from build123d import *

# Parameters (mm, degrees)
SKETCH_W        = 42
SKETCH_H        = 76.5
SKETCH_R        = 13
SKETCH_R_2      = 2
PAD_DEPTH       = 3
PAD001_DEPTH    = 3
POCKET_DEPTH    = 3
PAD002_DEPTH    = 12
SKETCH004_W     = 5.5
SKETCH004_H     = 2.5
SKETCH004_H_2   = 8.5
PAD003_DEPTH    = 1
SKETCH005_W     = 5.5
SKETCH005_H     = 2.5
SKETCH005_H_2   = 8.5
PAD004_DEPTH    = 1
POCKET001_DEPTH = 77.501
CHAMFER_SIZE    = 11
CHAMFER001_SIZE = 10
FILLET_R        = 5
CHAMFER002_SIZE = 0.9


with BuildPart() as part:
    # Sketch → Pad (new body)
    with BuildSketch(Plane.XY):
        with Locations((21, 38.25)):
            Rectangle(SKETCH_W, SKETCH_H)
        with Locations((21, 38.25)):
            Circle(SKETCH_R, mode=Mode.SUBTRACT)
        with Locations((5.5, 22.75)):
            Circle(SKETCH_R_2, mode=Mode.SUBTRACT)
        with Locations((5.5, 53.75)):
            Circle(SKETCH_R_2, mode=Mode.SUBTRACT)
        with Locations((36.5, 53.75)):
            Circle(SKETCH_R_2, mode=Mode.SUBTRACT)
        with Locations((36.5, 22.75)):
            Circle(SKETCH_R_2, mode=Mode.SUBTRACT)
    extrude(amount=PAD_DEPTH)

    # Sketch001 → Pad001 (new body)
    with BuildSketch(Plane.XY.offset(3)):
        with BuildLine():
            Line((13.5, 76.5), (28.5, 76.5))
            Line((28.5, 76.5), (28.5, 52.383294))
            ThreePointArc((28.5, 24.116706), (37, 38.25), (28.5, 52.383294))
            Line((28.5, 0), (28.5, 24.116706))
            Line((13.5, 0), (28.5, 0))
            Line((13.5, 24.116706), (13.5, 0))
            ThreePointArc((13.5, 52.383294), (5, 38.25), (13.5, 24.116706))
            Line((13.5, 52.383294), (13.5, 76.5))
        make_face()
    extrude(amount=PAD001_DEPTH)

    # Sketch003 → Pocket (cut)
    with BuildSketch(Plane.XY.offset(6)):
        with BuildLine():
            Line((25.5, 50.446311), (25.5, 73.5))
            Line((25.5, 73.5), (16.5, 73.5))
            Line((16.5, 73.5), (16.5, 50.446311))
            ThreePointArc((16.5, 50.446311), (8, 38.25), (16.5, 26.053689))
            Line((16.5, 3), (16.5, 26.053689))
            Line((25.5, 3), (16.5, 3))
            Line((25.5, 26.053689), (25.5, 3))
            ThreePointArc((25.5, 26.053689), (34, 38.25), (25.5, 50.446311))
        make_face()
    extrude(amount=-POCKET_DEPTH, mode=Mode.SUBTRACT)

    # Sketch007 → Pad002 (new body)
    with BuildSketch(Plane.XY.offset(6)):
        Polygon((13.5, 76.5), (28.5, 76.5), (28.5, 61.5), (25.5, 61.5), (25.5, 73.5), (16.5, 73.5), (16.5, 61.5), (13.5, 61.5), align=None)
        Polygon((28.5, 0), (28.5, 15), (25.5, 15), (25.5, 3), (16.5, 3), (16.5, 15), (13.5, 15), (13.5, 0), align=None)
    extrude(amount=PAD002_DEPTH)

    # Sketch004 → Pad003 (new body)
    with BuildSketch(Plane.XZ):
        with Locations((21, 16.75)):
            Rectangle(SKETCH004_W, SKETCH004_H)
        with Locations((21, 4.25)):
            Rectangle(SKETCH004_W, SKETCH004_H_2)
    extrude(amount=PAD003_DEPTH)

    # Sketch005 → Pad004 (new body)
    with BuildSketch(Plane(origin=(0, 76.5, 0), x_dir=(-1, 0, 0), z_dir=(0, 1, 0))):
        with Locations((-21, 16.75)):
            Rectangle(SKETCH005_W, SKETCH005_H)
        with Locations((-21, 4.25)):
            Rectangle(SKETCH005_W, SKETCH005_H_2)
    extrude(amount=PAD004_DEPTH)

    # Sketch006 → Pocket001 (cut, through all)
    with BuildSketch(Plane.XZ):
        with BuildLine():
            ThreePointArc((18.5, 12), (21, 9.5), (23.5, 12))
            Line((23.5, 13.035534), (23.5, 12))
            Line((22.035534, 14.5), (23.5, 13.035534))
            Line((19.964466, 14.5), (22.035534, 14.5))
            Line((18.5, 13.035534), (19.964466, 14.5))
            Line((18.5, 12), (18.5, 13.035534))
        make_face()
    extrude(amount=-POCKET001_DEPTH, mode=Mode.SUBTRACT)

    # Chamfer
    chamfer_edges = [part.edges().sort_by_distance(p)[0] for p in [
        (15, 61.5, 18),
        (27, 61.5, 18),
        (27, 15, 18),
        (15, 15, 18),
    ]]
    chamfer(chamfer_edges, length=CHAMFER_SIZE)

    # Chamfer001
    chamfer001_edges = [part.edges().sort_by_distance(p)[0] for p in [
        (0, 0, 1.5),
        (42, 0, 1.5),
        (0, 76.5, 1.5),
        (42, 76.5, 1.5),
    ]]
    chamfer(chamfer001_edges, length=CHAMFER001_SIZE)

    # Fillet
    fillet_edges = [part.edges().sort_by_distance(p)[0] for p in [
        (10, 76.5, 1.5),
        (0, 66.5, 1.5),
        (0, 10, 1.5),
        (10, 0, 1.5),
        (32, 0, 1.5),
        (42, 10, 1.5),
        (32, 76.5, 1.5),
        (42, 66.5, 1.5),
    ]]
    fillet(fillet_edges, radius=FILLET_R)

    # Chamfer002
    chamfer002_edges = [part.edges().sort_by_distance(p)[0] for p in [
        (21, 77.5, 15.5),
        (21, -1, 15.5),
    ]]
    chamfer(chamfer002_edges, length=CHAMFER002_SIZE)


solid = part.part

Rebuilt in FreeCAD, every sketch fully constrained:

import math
import FreeCAD as App
import Part
import Sketcher


def edges_at(feature, points):
    """Names of the edges that pass closest to the given points."""
    edges = feature.Shape.Edges
    near = lambda p: min(range(len(edges)), key=lambda i: edges[i].distToShape(Part.Vertex(*p))[0])
    return sorted({f"Edge{near(p) + 1}" for p in points})


def add_polygon(sketch, points):
    """Adds a closed chain of lines whose ends are joined by coincident constraints."""
    first, n = sketch.GeometryCount, len(points)
    for a, b in zip(points, points[1:] + points[:1]):
        sketch.addGeometry(Part.LineSegment(App.Vector(*a, 0), App.Vector(*b, 0)), False)
    for i in range(n):
        sketch.addConstraint(Sketcher.Constraint("Coincident", first + i, 2, first + (i + 1) % n, 1))

doc = App.newDocument("Part")
body = doc.addObject("PartDesign::Body", "Body")

sketch1 = doc.addObject("Sketcher::SketchObject", "Sketch")
body.addObject(sketch1)
sketch1.AttachmentSupport = (doc.XY_Plane, [""])
sketch1.MapMode = "FlatFace"
add_polygon(sketch1, [(0, 76.5), (0, 0), (42, 0), (42, 76.5)])
sketch1.addGeometry(Part.Circle(App.Vector(5.5, 22.8, 0), App.Vector(0, 0, 1), 2), False)
sketch1.addGeometry(Part.Circle(App.Vector(36.5, 22.8, 0), App.Vector(0, 0, 1), 2), False)
sketch1.addGeometry(Part.Circle(App.Vector(5.5, 53.8, 0), App.Vector(0, 0, 1), 2), False)
sketch1.addGeometry(Part.Circle(App.Vector(21, 38.2, 0), App.Vector(0, 0, 1), 13), False)
sketch1.addGeometry(Part.Circle(App.Vector(36.5, 53.8, 0), App.Vector(0, 0, 1), 2), False)
sketch1.addConstraint([
    Sketcher.Constraint("Vertical", 0),
    Sketcher.Constraint("Horizontal", 1),
    Sketcher.Constraint("Vertical", 2),
    Sketcher.Constraint("Horizontal", 3),
    Sketcher.Constraint("Coincident", 0, 2, -1, 1),
    Sketcher.Constraint("Equal", 4, 5),
    Sketcher.Constraint("Equal", 5, 6),
    Sketcher.Constraint("Equal", 6, 8),
    Sketcher.Constraint("Horizontal", 4, 3, 5, 3),
    Sketcher.Constraint("Horizontal", 6, 3, 8, 3),
    Sketcher.Constraint("Vertical", 4, 3, 6, 3),
    Sketcher.Constraint("Vertical", 5, 3, 8, 3),
    Sketcher.Constraint("Diameter", 4, 4.0),
    Sketcher.Constraint("Diameter", 7, 26.0),
    Sketcher.Constraint("DistanceX", 1, 1, 1, 2, 42.0),
    Sketcher.Constraint("DistanceY", 0, 2, 0, 1, 76.5),
    Sketcher.Constraint("DistanceX", -1, 1, 7, 3, 21.0),
    Sketcher.Constraint("DistanceX", 4, 3, 5, 3, 31.0),
    Sketcher.Constraint("DistanceY", 4, 3, 6, 3, 31.0),
    Sketcher.Constraint("DistanceX", -1, 1, 4, 3, 5.5),
    Sketcher.Constraint("DistanceY", 4, 3, 7, 3, 15.5),
    Sketcher.Constraint("DistanceY", -1, 1, 4, 3, 22.75),
])
pad1 = doc.addObject("PartDesign::Pad", "Pad")
body.addObject(pad1)
pad1.Profile = sketch1
pad1.Length = 3

sketch2 = doc.addObject("Sketcher::SketchObject", "Sketch001")
body.addObject(sketch2)
sketch2.AttachmentSupport = (doc.XY_Plane, [""])
sketch2.MapMode = "FlatFace"
sketch2.AttachmentOffset = App.Placement(App.Vector(0, 0, 3), App.Rotation())
sketch2.addGeometry([
    Part.LineSegment(App.Vector(28, 76, 0), App.Vector(14, 76, 0)),
    Part.LineSegment(App.Vector(14, 76, 0), App.Vector(14, 52, 0)),
    Part.ArcOfCircle(Part.Circle(App.Vector(21, 38, 0), App.Vector(0, 0, 1), 16), math.radians(118), math.radians(242)),
    Part.LineSegment(App.Vector(14, 24, 0), App.Vector(14, 0, 0)),
    Part.LineSegment(App.Vector(14, 0, 0), App.Vector(28, 0, 0)),
    Part.LineSegment(App.Vector(28, 0, 0), App.Vector(28, 24, 0)),
    Part.ArcOfCircle(Part.Circle(App.Vector(21, 38, 0), App.Vector(0, 0, 1), 16), math.radians(-62), math.radians(62)),
    Part.LineSegment(App.Vector(28, 52, 0), App.Vector(28, 76, 0)),
], False)
sketch2.addConstraint([
    Sketcher.Constraint("Coincident", 0, 2, 1, 1),
    Sketcher.Constraint("Coincident", 1, 2, 2, 1),
    Sketcher.Constraint("Coincident", 2, 2, 3, 1),
    Sketcher.Constraint("Coincident", 3, 2, 4, 1),
    Sketcher.Constraint("Coincident", 4, 2, 5, 1),
    Sketcher.Constraint("Coincident", 5, 2, 6, 1),
    Sketcher.Constraint("Coincident", 6, 2, 7, 1),
    Sketcher.Constraint("Coincident", 7, 2, 0, 1),
    Sketcher.Constraint("Horizontal", 0),
    Sketcher.Constraint("Vertical", 1),
    Sketcher.Constraint("Vertical", 3),
    Sketcher.Constraint("Horizontal", 4),
    Sketcher.Constraint("Vertical", 5),
    Sketcher.Constraint("Vertical", 7),
    Sketcher.Constraint("Coincident", 6, 3, 2, 3),
    Sketcher.Constraint("Equal", 2, 6),
    Sketcher.Constraint("PointOnObject", 3, 2, -1),
    Sketcher.Constraint("Horizontal", 2, 2, 5, 2),
    Sketcher.Constraint("Horizontal", 1, 2, 6, 2),
    Sketcher.Constraint("Vertical", 1, 2, 2, 2),
    Sketcher.Constraint("Equal", 1, 3),
    Sketcher.Constraint("Radius", 2, 16.0),
    Sketcher.Constraint("DistanceX", 0, 2, 0, 1, 15.0),
    Sketcher.Constraint("DistanceX", -1, 1, 2, 3, 21.0),
    Sketcher.Constraint("DistanceY", -1, 1, 0, 2, 76.5),
])
pad2 = doc.addObject("PartDesign::Pad", "Pad001")
body.addObject(pad2)
pad2.Profile = sketch2
pad2.Length = 3

sketch3 = doc.addObject("Sketcher::SketchObject", "Sketch002")
body.addObject(sketch3)
sketch3.AttachmentSupport = (doc.XY_Plane, [""])
sketch3.MapMode = "FlatFace"
sketch3.AttachmentOffset = App.Placement(App.Vector(0, 0, 6), App.Rotation())
sketch3.addGeometry([
    Part.LineSegment(App.Vector(26, 50, 0), App.Vector(26, 74, 0)),
    Part.LineSegment(App.Vector(26, 74, 0), App.Vector(16, 74, 0)),
    Part.LineSegment(App.Vector(16, 74, 0), App.Vector(16, 50, 0)),
    Part.ArcOfCircle(Part.Circle(App.Vector(21, 38, 0), App.Vector(0, 0, 1), 13), math.radians(110), math.radians(250)),
    Part.LineSegment(App.Vector(16, 26, 0), App.Vector(16, 3, 0)),
    Part.LineSegment(App.Vector(16, 3, 0), App.Vector(26, 3, 0)),
    Part.LineSegment(App.Vector(26, 3, 0), App.Vector(26, 26, 0)),
    Part.ArcOfCircle(Part.Circle(App.Vector(21, 38, 0), App.Vector(0, 0, 1), 13), math.radians(-70), math.radians(70)),
], False)
sketch3.addConstraint([
    Sketcher.Constraint("Coincident", 0, 2, 1, 1),
    Sketcher.Constraint("Coincident", 1, 2, 2, 1),
    Sketcher.Constraint("Coincident", 2, 2, 3, 1),
    Sketcher.Constraint("Coincident", 3, 2, 4, 1),
    Sketcher.Constraint("Coincident", 4, 2, 5, 1),
    Sketcher.Constraint("Coincident", 5, 2, 6, 1),
    Sketcher.Constraint("Coincident", 6, 2, 7, 1),
    Sketcher.Constraint("Coincident", 7, 2, 0, 1),
    Sketcher.Constraint("Vertical", 0),
    Sketcher.Constraint("Horizontal", 1),
    Sketcher.Constraint("Vertical", 2),
    Sketcher.Constraint("Vertical", 4),
    Sketcher.Constraint("Horizontal", 5),
    Sketcher.Constraint("Vertical", 6),
    Sketcher.Constraint("Coincident", 7, 3, 3, 3),
    Sketcher.Constraint("Equal", 3, 7),
    Sketcher.Constraint("Horizontal", 3, 2, 6, 2),
    Sketcher.Constraint("Horizontal", 2, 2, 7, 2),
    Sketcher.Constraint("Vertical", 2, 2, 3, 2),
    Sketcher.Constraint("Equal", 2, 4),
    Sketcher.Constraint("Radius", 3, 13.0),
    Sketcher.Constraint("DistanceX", 1, 2, 1, 1, 9.0),
    Sketcher.Constraint("DistanceX", -1, 1, 3, 3, 21.0),
    Sketcher.Constraint("DistanceY", -1, 1, 4, 2, 3.0),
    Sketcher.Constraint("DistanceY", -1, 1, 0, 2, 73.5),
])
pocket1 = doc.addObject("PartDesign::Pocket", "Pocket")
body.addObject(pocket1)
pocket1.Profile = sketch3
pocket1.Length = 3

sketch4 = doc.addObject("Sketcher::SketchObject", "Sketch003")
body.addObject(sketch4)
sketch4.AttachmentSupport = (doc.XY_Plane, [""])
sketch4.MapMode = "FlatFace"
sketch4.AttachmentOffset = App.Placement(App.Vector(0, 0, 6), App.Rotation())
add_polygon(sketch4, [(28.5, 76.5), (13.5, 76.5), (13.5, 61.5), (16.5, 61.5), (16.5, 73.5), (25.5, 73.5), (25.5, 61.5), (28.5, 61.5)])
add_polygon(sketch4, [(28.5, 0), (28.5, 15), (25.5, 15), (25.5, 3), (16.5, 3), (16.5, 15), (13.5, 15), (13.5, 0)])
sketch4.addConstraint([
    Sketcher.Constraint("Horizontal", 0),
    Sketcher.Constraint("Vertical", 1),
    Sketcher.Constraint("Horizontal", 2),
    Sketcher.Constraint("Vertical", 3),
    Sketcher.Constraint("Horizontal", 4),
    Sketcher.Constraint("Vertical", 5),
    Sketcher.Constraint("Horizontal", 6),
    Sketcher.Constraint("Vertical", 7),
    Sketcher.Constraint("Vertical", 8),
    Sketcher.Constraint("Horizontal", 9),
    Sketcher.Constraint("Vertical", 10),
    Sketcher.Constraint("Horizontal", 11),
    Sketcher.Constraint("Vertical", 12),
    Sketcher.Constraint("Horizontal", 13),
    Sketcher.Constraint("Vertical", 14),
    Sketcher.Constraint("Horizontal", 15),
    Sketcher.Constraint("PointOnObject", 14, 2, -1),
    Sketcher.Constraint("Horizontal", 2, 2, 5, 2),
    Sketcher.Constraint("Horizontal", 9, 2, 12, 2),
    Sketcher.Constraint("Vertical", 7, 2, 8, 2),
    Sketcher.Constraint("Vertical", 5, 2, 9, 2),
    Sketcher.Constraint("Vertical", 3, 2, 11, 2),
    Sketcher.Constraint("Vertical", 1, 2, 13, 2),
    Sketcher.Constraint("Equal", 2, 6),
    Sketcher.Constraint("Equal", 15, 1),
    Sketcher.Constraint("Equal", 7, 8),
    Sketcher.Constraint("Equal", 5, 10),
    Sketcher.Constraint("DistanceX", 0, 2, 0, 1, 15.0),
    Sketcher.Constraint("DistanceX", 2, 1, 2, 2, 3.0),
    Sketcher.Constraint("DistanceY", 3, 1, 3, 2, 12.0),
    Sketcher.Constraint("DistanceX", -1, 1, 0, 2, 13.5),
    Sketcher.Constraint("DistanceY", -1, 1, 0, 2, 76.5),
])
pad3 = doc.addObject("PartDesign::Pad", "Pad002")
body.addObject(pad3)
pad3.Profile = sketch4
pad3.Length = 12

sketch5 = doc.addObject("Sketcher::SketchObject", "Sketch004")
body.addObject(sketch5)
sketch5.AttachmentSupport = (doc.XZ_Plane, [""])
sketch5.MapMode = "FlatFace"
add_polygon(sketch5, [(18.2, 18), (18.2, 15.5), (23.8, 15.5), (23.8, 18)])
add_polygon(sketch5, [(18.2, 8.5), (18.2, 0), (23.8, 0), (23.8, 8.5)])
sketch5.addConstraint([
    Sketcher.Constraint("Vertical", 0),
    Sketcher.Constraint("Horizontal", 1),
    Sketcher.Constraint("Vertical", 2),
    Sketcher.Constraint("Horizontal", 3),
    Sketcher.Constraint("Vertical", 4),
    Sketcher.Constraint("Horizontal", 5),
    Sketcher.Constraint("Vertical", 6),
    Sketcher.Constraint("Horizontal", 7),
    Sketcher.Constraint("PointOnObject", 4, 2, -1),
    Sketcher.Constraint("Vertical", 3, 2, 4, 2),
    Sketcher.Constraint("Vertical", 2, 2, 5, 2),
    Sketcher.Constraint("DistanceX", 1, 1, 1, 2, 5.5),
    Sketcher.Constraint("DistanceY", 0, 2, 0, 1, 2.5),
    Sketcher.Constraint("DistanceY", 4, 2, 4, 1, 8.5),
    Sketcher.Constraint("DistanceY", -1, 1, 2, 2, 18.0),
    Sketcher.Constraint("DistanceX", -1, 1, 0, 2, 18.25),
])
pad4 = doc.addObject("PartDesign::Pad", "Pad003")
body.addObject(pad4)
pad4.Profile = sketch5
pad4.Length = 1

sketch6 = doc.addObject("Sketcher::SketchObject", "Sketch005")
body.addObject(sketch6)
sketch6.AttachmentSupport = (doc.XZ_Plane, [""])
sketch6.MapMode = "FlatFace"
sketch6.AttachmentOffset = App.Placement(App.Vector(0, 0, -76.5), App.Rotation())
add_polygon(sketch6, [(23.8, 18), (23.8, 15.5), (18.2, 15.5), (18.2, 18)])
add_polygon(sketch6, [(23.8, 8.5), (23.8, 0), (18.2, 0), (18.2, 8.5)])
sketch6.addConstraint([
    Sketcher.Constraint("Vertical", 0),
    Sketcher.Constraint("Horizontal", 1),
    Sketcher.Constraint("Vertical", 2),
    Sketcher.Constraint("Horizontal", 3),
    Sketcher.Constraint("Vertical", 4),
    Sketcher.Constraint("Horizontal", 5),
    Sketcher.Constraint("Vertical", 6),
    Sketcher.Constraint("Horizontal", 7),
    Sketcher.Constraint("PointOnObject", 4, 2, -1),
    Sketcher.Constraint("Vertical", 3, 2, 4, 2),
    Sketcher.Constraint("Vertical", 2, 2, 5, 2),
    Sketcher.Constraint("DistanceX", 1, 2, 1, 1, 5.5),
    Sketcher.Constraint("DistanceY", 0, 2, 0, 1, 2.5),
    Sketcher.Constraint("DistanceY", 4, 2, 4, 1, 8.5),
    Sketcher.Constraint("DistanceY", -1, 1, 2, 2, 18.0),
    Sketcher.Constraint("DistanceX", -1, 1, 0, 2, 23.75),
])
pad5 = doc.addObject("PartDesign::Pad", "Pad004")
body.addObject(pad5)
pad5.Profile = sketch6
pad5.Length = 1
pad5.Reversed = True

sketch7 = doc.addObject("Sketcher::SketchObject", "Sketch006")
body.addObject(sketch7)
sketch7.AttachmentSupport = (doc.XZ_Plane, [""])
sketch7.MapMode = "FlatFace"
sketch7.addGeometry([
    Part.ArcOfCircle(Part.Circle(App.Vector(21, 12, 0), App.Vector(0, 0, 1), 2.5), math.radians(180), math.radians(360)),
    Part.LineSegment(App.Vector(23.5, 12, 0), App.Vector(23.5, 13, 0)),
    Part.LineSegment(App.Vector(23.5, 13, 0), App.Vector(22, 14.5, 0)),
    Part.LineSegment(App.Vector(22, 14.5, 0), App.Vector(20, 14.5, 0)),
    Part.LineSegment(App.Vector(20, 14.5, 0), App.Vector(18.5, 13, 0)),
    Part.LineSegment(App.Vector(18.5, 13, 0), App.Vector(18.5, 12, 0)),
], False)
sketch7.addConstraint([
    Sketcher.Constraint("Tangent", 0, 2, 1, 1),
    Sketcher.Constraint("Coincident", 1, 2, 2, 1),
    Sketcher.Constraint("Coincident", 2, 2, 3, 1),
    Sketcher.Constraint("Coincident", 3, 2, 4, 1),
    Sketcher.Constraint("Coincident", 4, 2, 5, 1),
    Sketcher.Constraint("Tangent", 5, 2, 0, 1),
    Sketcher.Constraint("Vertical", 1),
    Sketcher.Constraint("Horizontal", 3),
    Sketcher.Constraint("Vertical", 5),
    Sketcher.Constraint("Perpendicular", 2, 4),
    Sketcher.Constraint("Horizontal", 1, 2, 4, 2),
    Sketcher.Constraint("Equal", 2, 4),
    Sketcher.Constraint("Radius", 0, 2.5),
    Sketcher.Constraint("DistanceX", -1, 1, 0, 3, 21.0),
    Sketcher.Constraint("DistanceY", -1, 1, 0, 3, 12.0),
    Sketcher.Constraint("DistanceY", -1, 1, 2, 2, 14.5),
    Sketcher.Constraint("DistanceX", 3, 2, 3, 1, 2.071068),
])
pocket2 = doc.addObject("PartDesign::Pocket", "Pocket001")
body.addObject(pocket2)
pocket2.Profile = sketch7
pocket2.Type = "ThroughAll"
doc.recompute()

chamfer = doc.addObject("PartDesign::Chamfer", "Chamfer")
body.addObject(chamfer)
chamfer.Base = (pocket2, edges_at(pocket2, [
    (15, 61.5, 18),
    (27, 61.5, 18),
    (27, 15, 18),
    (15, 15, 18),
]))
chamfer.Size = 11
doc.recompute()

chamfer2 = doc.addObject("PartDesign::Chamfer", "Chamfer001")
body.addObject(chamfer2)
chamfer2.Base = (chamfer, edges_at(chamfer, [
    (0, 0, 1.5),
    (42, 0, 1.5),
    (0, 76.5, 1.5),
    (42, 76.5, 1.5),
]))
chamfer2.Size = 10
doc.recompute()

fillet = doc.addObject("PartDesign::Fillet", "Fillet")
body.addObject(fillet)
fillet.Base = (chamfer2, edges_at(chamfer2, [
    (10, 76.5, 1.5),
    (0, 66.5, 1.5),
    (0, 10, 1.5),
    (10, 0, 1.5),
    (32, 0, 1.5),
    (42, 10, 1.5),
    (32, 76.5, 1.5),
    (42, 66.5, 1.5),
]))
fillet.Radius = 5
doc.recompute()

chamfer3 = doc.addObject("PartDesign::Chamfer", "Chamfer002")
body.addObject(chamfer3)
chamfer3.Base = (fillet, edges_at(fillet, [(21, 77.5, 15.5), (21, -1, 15.5)]))
chamfer3.Size = 0.9

doc.recompute()
